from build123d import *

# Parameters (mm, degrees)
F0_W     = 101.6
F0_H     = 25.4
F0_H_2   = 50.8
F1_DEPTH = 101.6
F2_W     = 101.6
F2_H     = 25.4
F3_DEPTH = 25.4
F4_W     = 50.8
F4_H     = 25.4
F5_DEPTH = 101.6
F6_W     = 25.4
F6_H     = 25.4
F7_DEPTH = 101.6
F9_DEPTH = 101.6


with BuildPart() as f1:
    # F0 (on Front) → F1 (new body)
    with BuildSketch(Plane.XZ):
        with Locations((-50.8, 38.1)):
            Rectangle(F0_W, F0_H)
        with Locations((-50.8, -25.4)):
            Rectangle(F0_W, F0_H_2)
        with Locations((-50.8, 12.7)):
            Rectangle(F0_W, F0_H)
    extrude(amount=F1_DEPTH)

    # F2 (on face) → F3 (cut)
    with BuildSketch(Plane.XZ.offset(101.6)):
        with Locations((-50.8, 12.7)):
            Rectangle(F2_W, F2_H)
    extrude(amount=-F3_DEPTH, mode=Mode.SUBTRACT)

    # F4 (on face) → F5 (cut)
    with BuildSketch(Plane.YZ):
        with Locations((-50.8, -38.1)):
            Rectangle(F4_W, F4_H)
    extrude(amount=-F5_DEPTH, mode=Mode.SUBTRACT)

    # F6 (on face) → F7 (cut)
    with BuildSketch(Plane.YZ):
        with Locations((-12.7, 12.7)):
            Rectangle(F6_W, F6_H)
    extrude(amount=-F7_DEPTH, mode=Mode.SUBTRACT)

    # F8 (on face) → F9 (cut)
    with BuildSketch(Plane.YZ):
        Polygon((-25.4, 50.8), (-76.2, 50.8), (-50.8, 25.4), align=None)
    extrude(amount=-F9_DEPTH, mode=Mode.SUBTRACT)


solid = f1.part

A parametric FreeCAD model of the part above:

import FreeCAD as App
import Part
import Sketcher
Q = App.Units.Quantity


def add_polygon(sketch, points):
    """Adds a closed chain of lines whose ends are joined by coincident constraints."""
    first, n = sketch.GeometryCount, len(points)
    for a, b in zip(points, points[1:] + points[:1]):
        sketch.addGeometry(Part.LineSegment(App.Vector(*a, 0), App.Vector(*b, 0)), False)
    for i in range(n):
        sketch.addConstraint(Sketcher.Constraint("Coincident", first + i, 2, first + (i + 1) % n, 1))

doc = App.newDocument("Part")
body = doc.addObject("PartDesign::Body", "Body")

sketch1 = doc.addObject("Sketcher::SketchObject", "Sketch")
body.addObject(sketch1)
sketch1.AttachmentSupport = (doc.XZ_Plane, [""])
sketch1.MapMode = "FlatFace"
add_polygon(sketch1, [(-101.6, 50.8), (-101.6, -50.8), (0, -50.8), (0, 50.8)])
sketch1.addConstraint([
    Sketcher.Constraint("Vertical", 0),
    Sketcher.Constraint("Horizontal", 1),
    Sketcher.Constraint("Vertical", 2),
    Sketcher.Constraint("Horizontal", 3),
    Sketcher.Constraint("Symmetric", 1, 2, 2, 2, -1, 1),
    Sketcher.Constraint("Equal", 3, 0),
    Sketcher.Constraint("DistanceX", 1, 1, 1, 2, Q("4 in")),
])
pad1 = doc.addObject("PartDesign::Pad", "Pad")
body.addObject(pad1)
pad1.Profile = sketch1
pad1.Length = Q("4 in")

sketch2 = doc.addObject("Sketcher::SketchObject", "Sketch001")
body.addObject(sketch2)
sketch2.AttachmentSupport = (doc.XZ_Plane, [""])
sketch2.MapMode = "FlatFace"
sketch2.AttachmentOffset = App.Placement(App.Vector(0, 0, 4 * 25.4), App.Rotation())
add_polygon(sketch2, [(-101.6, 25.4), (-101.6, 0), (0, 0), (0, 25.4)])
sketch2.addConstraint([
    Sketcher.Constraint("Vertical", 0),
    Sketcher.Constraint("Horizontal", 1),
    Sketcher.Constraint("Vertical", 2),
    Sketcher.Constraint("Horizontal", 3),
    Sketcher.Constraint("Coincident", 1, 2, -1, 1),
    Sketcher.Constraint("DistanceX", 1, 1, 1, 2, Q("4 in")),
    Sketcher.Constraint("DistanceY", 0, 2, 0, 1, Q("1 in")),
])
pocket1 = doc.addObject("PartDesign::Pocket", "Pocket")
body.addObject(pocket1)
pocket1.Profile = sketch2
pocket1.Length = Q("1 in")

sketch3 = doc.addObject("Sketcher::SketchObject", "Sketch002")
body.addObject(sketch3)
sketch3.AttachmentSupport = (doc.YZ_Plane, [""])
sketch3.MapMode = "FlatFace"
add_polygon(sketch3, [(-76.2, -25.4), (-76.2, -50.8), (-25.4, -50.8), (-25.4, -25.4)])
sketch3.addConstraint([
    Sketcher.Constraint("Vertical", 0),
    Sketcher.Constraint("Horizontal", 1),
    Sketcher.Constraint("Vertical", 2),
    Sketcher.Constraint("Horizontal", 3),
    Sketcher.Constraint("DistanceX", 1, 1, 1, 2, Q("2 in")),
    Sketcher.Constraint("DistanceY", 0, 2, 0, 1, Q("1 in")),
    Sketcher.Constraint("DistanceX", 0, 2, -1, 1, Q("3 in")),
    Sketcher.Constraint("DistanceY", 0, 2, -1, 1, Q("2 in")),
])
pocket2 = doc.addObject("PartDesign::Pocket", "Pocket001")
body.addObject(pocket2)
pocket2.Profile = sketch3
pocket2.Length = Q("4 in")

sketch4 = doc.addObject("Sketcher::SketchObject", "Sketch003")
body.addObject(sketch4)
sketch4.AttachmentSupport = (doc.YZ_Plane, [""])
sketch4.MapMode = "FlatFace"
add_polygon(sketch4, [(-25.4, 25.4), (-25.4, 0), (0, 0), (0, 25.4)])
sketch4.addConstraint([
    Sketcher.Constraint("Vertical", 0),
    Sketcher.Constraint("Horizontal", 1),
    Sketcher.Constraint("Vertical", 2),
    Sketcher.Constraint("Horizontal", 3),
    Sketcher.Constraint("Coincident", 1, 2, -1, 1),
    Sketcher.Constraint("Equal", 3, 0),
    Sketcher.Constraint("DistanceX", 1, 1, 1, 2, Q("1 in")),
])
pocket3 = doc.addObject("PartDesign::Pocket", "Pocket002")
body.addObject(pocket3)
pocket3.Profile = sketch4
pocket3.Length = Q("4 in")

sketch5 = doc.addObject("Sketcher::SketchObject", "Sketch004")
body.addObject(sketch5)
sketch5.AttachmentSupport = (doc.YZ_Plane, [""])
sketch5.MapMode = "FlatFace"
add_polygon(sketch5, [(-25.4, 50.8), (-76.2, 50.8), (-50.8, 25.4)])
sketch5.addConstraint([
    Sketcher.Constraint("Horizontal", 0),
    Sketcher.Constraint("Perpendicular", 1, 2),
    Sketcher.Constraint("Equal", 1, 2),
    Sketcher.Constraint("DistanceX", 0, 2, 0, 1, Q("2 in")),
    Sketcher.Constraint("DistanceX", 0, 2, -1, 1, Q("3 in")),
    Sketcher.Constraint("DistanceY", -1, 1, 0, 2, Q("2 in")),
])
pocket4 = doc.addObject("PartDesign::Pocket", "Pocket003")
body.addObject(pocket4)
pocket4.Profile = sketch5
pocket4.Length = Q("4 in")

doc.recompute()
